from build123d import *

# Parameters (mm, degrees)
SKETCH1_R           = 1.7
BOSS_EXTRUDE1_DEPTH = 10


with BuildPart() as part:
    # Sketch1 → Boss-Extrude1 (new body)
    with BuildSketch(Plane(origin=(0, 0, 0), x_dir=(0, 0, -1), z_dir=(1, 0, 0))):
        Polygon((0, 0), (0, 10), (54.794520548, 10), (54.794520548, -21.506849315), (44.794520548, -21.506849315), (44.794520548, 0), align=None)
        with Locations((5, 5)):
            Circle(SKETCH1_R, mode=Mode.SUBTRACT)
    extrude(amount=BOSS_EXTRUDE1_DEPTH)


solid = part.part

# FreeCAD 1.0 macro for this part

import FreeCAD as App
import Part
import Sketcher

V = App.Vector
Q = App.Units.Quantity

doc = App.newDocument("Part")
body = doc.addObject("PartDesign::Body", "Body")

# Sketch on YZ plane
sketch1 = body.newObject("Sketcher::SketchObject", "Sketch")
sketch1.AttachmentSupport = (doc.getObject("YZ_Plane"), [""])
sketch1.MapMode = "FlatFace"
sketch1.addGeometry([
    Part.LineSegment(V(10, 0, 0), V(0, 0, 0)),  # 0
    Part.LineSegment(V(0, 0, 0), V(0, -44.8, 0)),  # 1
    Part.LineSegment(V(0, -44.8, 0), V(-21.5, -44.8, 0)),  # 2
    Part.LineSegment(V(-21.5, -44.8, 0), V(-21.5, -54.8, 0)),  # 3
    Part.LineSegment(V(-21.5, -54.8, 0), V(10, -54.8, 0)),  # 4
    Part.LineSegment(V(10, -54.8, 0), V(10, 0, 0)),  # 5
    Part.Circle(V(5, -5, 0), V(0, 0, 1), 1.7),  # 6
], False)
sketch1.addConstraint([
    Sketcher.Constraint("Coincident", 0, 2, 1, 1),
    Sketcher.Constraint("Coincident", 1, 2, 2, 1),
    Sketcher.Constraint("Coincident", 2, 2, 3, 1),
    Sketcher.Constraint("Coincident", 3, 2, 4, 1),
    Sketcher.Constraint("Coincident", 4, 2, 5, 1),
    Sketcher.Constraint("Coincident", 5, 2, 0, 1),
    Sketcher.Constraint("Horizontal", 0),
    Sketcher.Constraint("Vertical", 1),
    Sketcher.Constraint("Horizontal", 2),
    Sketcher.Constraint("Vertical", 3),
    Sketcher.Constraint("Horizontal", 4),
    Sketcher.Constraint("Vertical", 5),
    Sketcher.Constraint("Coincident", 0, 2, -1, 1),
    Sketcher.Constraint("Equal", 0, 3),
    Sketcher.Constraint("Diameter", 6, Q("3.4 mm")),
    Sketcher.Constraint("DistanceX", 0, 2, 0, 1, Q("10 mm")),
    Sketcher.Constraint("DistanceX", -1, 1, 6, 3, Q("5 mm")),
    Sketcher.Constraint("DistanceY", 6, 3, -1, 1, Q("5 mm")),
    Sketcher.Constraint("DistanceX", 2, 2, 2, 1, Q("21.506849 mm")),
    Sketcher.Constraint("DistanceY", 1, 2, 1, 1, Q("44.794521 mm")),
])
pad1 = body.newObject("PartDesign::Pad", "Pad")
pad1.Profile = sketch1
pad1.Length = 10

doc.recompute()
